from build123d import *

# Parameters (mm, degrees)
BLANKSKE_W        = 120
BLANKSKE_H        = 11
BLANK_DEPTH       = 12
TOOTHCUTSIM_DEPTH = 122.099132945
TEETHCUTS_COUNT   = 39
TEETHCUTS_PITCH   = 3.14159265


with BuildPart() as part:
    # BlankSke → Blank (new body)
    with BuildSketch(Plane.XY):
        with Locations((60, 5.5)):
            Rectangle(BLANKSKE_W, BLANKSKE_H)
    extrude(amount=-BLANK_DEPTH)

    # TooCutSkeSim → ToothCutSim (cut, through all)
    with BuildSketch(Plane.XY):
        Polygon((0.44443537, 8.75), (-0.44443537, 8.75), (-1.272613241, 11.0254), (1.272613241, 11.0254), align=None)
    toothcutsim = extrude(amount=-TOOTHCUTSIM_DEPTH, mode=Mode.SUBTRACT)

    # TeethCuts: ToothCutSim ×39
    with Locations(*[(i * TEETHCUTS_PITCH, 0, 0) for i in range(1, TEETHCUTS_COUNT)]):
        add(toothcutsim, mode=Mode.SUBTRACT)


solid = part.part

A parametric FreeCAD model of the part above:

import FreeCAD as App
import Part
import Sketcher
Q = App.Units.Quantity


def add_polygon(sketch, points):
    """Adds a closed chain of lines whose ends are joined by coincident constraints."""
    first, n = sketch.GeometryCount, len(points)
    for a, b in zip(points, points[1:] + points[:1]):
        sketch.addGeometry(Part.LineSegment(App.Vector(*a, 0), App.Vector(*b, 0)), False)
    for i in range(n):
        sketch.addConstraint(Sketcher.Constraint("Coincident", first + i, 2, first + (i + 1) % n, 1))

doc = App.newDocument("Part")
params = doc.addObject("Spreadsheet::Sheet", "Params")
for row, (alias, value) in enumerate([
    ("sketch1_width", "120 mm"),
    ("sketch1_height", "11 mm"),
    ("pad1_length", "12 mm"),
    ("linearpattern_pitch", "3.141593 mm"),
], start=1):
    params.set(f"A{row}", alias)
    params.set(f"B{row}", "=" + value)
    params.setAlias(f"B{row}", alias)

body = doc.addObject("PartDesign::Body", "Body")

# Sketch on XY plane
sketch1 = body.newObject("Sketcher::SketchObject", "Sketch")
sketch1.AttachmentSupport = (doc.getObject("XY_Plane"), [""])
sketch1.MapMode = "FlatFace"
add_polygon(sketch1, [(0, 11), (0, 0), (120, 0), (120, 11)])  # lines 0-3
sketch1.addConstraint([
    Sketcher.Constraint("Vertical", 0),
    Sketcher.Constraint("Horizontal", 1),
    Sketcher.Constraint("Vertical", 2),
    Sketcher.Constraint("Horizontal", 3),
    Sketcher.Constraint("Coincident", 0, 2, -1, 1),
    Sketcher.Constraint("DistanceX", 1, 1, 1, 2, 120.0),
    Sketcher.Constraint("DistanceY", 0, 2, 0, 1, 11.0),
])
sketch1.setExpression("Constraints[9]", "Params.sketch1_width")
sketch1.setExpression("Constraints[10]", "Params.sketch1_height")
pad1 = body.newObject("PartDesign::Pad", "Pad")
pad1.Profile = sketch1
pad1.setExpression("Length", "Params.pad1_length")
pad1.Reversed = True

# Sketch on XY plane
sketch2 = body.newObject("Sketcher::SketchObject", "Sketch001")
sketch2.AttachmentSupport = (doc.getObject("XY_Plane"), [""])
sketch2.MapMode = "FlatFace"
add_polygon(sketch2, [(-0.444435, 8.75), (0.444435, 8.75), (1.272613, 11.0254), (-1.272613, 11.0254)])  # lines 0-3
sketch2.addConstraint([
    Sketcher.Constraint("Horizontal", 0),
    Sketcher.Constraint("Horizontal", 2),
    Sketcher.Constraint("Equal", 1, 3),
    Sketcher.Constraint("Angle", 1, Q("70 deg")),
    Sketcher.Constraint("DistanceY", -1, 1, 0, 2, 8.75),
    Sketcher.Constraint("DistanceX", 0, 1, 0, 2, 0.888871),
    Sketcher.Constraint("DistanceY", -1, 1, 1, 2, 11.0254),
    Sketcher.Constraint("DistanceX", -1, 1, 0, 2, 0.444435),
])
pocket1 = body.newObject("PartDesign::Pocket", "Pocket")
pocket1.Profile = sketch2
pocket1.Type = "ThroughAll"
doc.recompute()

linearpattern = body.newObject("PartDesign::LinearPattern", "LinearPattern")
linearpattern.Originals = [pocket1]
linearpattern.Direction = (doc.getObject("X_Axis"), [""])
linearpattern.Mode = "offset"
linearpattern.setExpression("Offset", "Params.linearpattern_pitch")
linearpattern.Occurrences = 39
body.Tip = linearpattern

doc.recompute()
